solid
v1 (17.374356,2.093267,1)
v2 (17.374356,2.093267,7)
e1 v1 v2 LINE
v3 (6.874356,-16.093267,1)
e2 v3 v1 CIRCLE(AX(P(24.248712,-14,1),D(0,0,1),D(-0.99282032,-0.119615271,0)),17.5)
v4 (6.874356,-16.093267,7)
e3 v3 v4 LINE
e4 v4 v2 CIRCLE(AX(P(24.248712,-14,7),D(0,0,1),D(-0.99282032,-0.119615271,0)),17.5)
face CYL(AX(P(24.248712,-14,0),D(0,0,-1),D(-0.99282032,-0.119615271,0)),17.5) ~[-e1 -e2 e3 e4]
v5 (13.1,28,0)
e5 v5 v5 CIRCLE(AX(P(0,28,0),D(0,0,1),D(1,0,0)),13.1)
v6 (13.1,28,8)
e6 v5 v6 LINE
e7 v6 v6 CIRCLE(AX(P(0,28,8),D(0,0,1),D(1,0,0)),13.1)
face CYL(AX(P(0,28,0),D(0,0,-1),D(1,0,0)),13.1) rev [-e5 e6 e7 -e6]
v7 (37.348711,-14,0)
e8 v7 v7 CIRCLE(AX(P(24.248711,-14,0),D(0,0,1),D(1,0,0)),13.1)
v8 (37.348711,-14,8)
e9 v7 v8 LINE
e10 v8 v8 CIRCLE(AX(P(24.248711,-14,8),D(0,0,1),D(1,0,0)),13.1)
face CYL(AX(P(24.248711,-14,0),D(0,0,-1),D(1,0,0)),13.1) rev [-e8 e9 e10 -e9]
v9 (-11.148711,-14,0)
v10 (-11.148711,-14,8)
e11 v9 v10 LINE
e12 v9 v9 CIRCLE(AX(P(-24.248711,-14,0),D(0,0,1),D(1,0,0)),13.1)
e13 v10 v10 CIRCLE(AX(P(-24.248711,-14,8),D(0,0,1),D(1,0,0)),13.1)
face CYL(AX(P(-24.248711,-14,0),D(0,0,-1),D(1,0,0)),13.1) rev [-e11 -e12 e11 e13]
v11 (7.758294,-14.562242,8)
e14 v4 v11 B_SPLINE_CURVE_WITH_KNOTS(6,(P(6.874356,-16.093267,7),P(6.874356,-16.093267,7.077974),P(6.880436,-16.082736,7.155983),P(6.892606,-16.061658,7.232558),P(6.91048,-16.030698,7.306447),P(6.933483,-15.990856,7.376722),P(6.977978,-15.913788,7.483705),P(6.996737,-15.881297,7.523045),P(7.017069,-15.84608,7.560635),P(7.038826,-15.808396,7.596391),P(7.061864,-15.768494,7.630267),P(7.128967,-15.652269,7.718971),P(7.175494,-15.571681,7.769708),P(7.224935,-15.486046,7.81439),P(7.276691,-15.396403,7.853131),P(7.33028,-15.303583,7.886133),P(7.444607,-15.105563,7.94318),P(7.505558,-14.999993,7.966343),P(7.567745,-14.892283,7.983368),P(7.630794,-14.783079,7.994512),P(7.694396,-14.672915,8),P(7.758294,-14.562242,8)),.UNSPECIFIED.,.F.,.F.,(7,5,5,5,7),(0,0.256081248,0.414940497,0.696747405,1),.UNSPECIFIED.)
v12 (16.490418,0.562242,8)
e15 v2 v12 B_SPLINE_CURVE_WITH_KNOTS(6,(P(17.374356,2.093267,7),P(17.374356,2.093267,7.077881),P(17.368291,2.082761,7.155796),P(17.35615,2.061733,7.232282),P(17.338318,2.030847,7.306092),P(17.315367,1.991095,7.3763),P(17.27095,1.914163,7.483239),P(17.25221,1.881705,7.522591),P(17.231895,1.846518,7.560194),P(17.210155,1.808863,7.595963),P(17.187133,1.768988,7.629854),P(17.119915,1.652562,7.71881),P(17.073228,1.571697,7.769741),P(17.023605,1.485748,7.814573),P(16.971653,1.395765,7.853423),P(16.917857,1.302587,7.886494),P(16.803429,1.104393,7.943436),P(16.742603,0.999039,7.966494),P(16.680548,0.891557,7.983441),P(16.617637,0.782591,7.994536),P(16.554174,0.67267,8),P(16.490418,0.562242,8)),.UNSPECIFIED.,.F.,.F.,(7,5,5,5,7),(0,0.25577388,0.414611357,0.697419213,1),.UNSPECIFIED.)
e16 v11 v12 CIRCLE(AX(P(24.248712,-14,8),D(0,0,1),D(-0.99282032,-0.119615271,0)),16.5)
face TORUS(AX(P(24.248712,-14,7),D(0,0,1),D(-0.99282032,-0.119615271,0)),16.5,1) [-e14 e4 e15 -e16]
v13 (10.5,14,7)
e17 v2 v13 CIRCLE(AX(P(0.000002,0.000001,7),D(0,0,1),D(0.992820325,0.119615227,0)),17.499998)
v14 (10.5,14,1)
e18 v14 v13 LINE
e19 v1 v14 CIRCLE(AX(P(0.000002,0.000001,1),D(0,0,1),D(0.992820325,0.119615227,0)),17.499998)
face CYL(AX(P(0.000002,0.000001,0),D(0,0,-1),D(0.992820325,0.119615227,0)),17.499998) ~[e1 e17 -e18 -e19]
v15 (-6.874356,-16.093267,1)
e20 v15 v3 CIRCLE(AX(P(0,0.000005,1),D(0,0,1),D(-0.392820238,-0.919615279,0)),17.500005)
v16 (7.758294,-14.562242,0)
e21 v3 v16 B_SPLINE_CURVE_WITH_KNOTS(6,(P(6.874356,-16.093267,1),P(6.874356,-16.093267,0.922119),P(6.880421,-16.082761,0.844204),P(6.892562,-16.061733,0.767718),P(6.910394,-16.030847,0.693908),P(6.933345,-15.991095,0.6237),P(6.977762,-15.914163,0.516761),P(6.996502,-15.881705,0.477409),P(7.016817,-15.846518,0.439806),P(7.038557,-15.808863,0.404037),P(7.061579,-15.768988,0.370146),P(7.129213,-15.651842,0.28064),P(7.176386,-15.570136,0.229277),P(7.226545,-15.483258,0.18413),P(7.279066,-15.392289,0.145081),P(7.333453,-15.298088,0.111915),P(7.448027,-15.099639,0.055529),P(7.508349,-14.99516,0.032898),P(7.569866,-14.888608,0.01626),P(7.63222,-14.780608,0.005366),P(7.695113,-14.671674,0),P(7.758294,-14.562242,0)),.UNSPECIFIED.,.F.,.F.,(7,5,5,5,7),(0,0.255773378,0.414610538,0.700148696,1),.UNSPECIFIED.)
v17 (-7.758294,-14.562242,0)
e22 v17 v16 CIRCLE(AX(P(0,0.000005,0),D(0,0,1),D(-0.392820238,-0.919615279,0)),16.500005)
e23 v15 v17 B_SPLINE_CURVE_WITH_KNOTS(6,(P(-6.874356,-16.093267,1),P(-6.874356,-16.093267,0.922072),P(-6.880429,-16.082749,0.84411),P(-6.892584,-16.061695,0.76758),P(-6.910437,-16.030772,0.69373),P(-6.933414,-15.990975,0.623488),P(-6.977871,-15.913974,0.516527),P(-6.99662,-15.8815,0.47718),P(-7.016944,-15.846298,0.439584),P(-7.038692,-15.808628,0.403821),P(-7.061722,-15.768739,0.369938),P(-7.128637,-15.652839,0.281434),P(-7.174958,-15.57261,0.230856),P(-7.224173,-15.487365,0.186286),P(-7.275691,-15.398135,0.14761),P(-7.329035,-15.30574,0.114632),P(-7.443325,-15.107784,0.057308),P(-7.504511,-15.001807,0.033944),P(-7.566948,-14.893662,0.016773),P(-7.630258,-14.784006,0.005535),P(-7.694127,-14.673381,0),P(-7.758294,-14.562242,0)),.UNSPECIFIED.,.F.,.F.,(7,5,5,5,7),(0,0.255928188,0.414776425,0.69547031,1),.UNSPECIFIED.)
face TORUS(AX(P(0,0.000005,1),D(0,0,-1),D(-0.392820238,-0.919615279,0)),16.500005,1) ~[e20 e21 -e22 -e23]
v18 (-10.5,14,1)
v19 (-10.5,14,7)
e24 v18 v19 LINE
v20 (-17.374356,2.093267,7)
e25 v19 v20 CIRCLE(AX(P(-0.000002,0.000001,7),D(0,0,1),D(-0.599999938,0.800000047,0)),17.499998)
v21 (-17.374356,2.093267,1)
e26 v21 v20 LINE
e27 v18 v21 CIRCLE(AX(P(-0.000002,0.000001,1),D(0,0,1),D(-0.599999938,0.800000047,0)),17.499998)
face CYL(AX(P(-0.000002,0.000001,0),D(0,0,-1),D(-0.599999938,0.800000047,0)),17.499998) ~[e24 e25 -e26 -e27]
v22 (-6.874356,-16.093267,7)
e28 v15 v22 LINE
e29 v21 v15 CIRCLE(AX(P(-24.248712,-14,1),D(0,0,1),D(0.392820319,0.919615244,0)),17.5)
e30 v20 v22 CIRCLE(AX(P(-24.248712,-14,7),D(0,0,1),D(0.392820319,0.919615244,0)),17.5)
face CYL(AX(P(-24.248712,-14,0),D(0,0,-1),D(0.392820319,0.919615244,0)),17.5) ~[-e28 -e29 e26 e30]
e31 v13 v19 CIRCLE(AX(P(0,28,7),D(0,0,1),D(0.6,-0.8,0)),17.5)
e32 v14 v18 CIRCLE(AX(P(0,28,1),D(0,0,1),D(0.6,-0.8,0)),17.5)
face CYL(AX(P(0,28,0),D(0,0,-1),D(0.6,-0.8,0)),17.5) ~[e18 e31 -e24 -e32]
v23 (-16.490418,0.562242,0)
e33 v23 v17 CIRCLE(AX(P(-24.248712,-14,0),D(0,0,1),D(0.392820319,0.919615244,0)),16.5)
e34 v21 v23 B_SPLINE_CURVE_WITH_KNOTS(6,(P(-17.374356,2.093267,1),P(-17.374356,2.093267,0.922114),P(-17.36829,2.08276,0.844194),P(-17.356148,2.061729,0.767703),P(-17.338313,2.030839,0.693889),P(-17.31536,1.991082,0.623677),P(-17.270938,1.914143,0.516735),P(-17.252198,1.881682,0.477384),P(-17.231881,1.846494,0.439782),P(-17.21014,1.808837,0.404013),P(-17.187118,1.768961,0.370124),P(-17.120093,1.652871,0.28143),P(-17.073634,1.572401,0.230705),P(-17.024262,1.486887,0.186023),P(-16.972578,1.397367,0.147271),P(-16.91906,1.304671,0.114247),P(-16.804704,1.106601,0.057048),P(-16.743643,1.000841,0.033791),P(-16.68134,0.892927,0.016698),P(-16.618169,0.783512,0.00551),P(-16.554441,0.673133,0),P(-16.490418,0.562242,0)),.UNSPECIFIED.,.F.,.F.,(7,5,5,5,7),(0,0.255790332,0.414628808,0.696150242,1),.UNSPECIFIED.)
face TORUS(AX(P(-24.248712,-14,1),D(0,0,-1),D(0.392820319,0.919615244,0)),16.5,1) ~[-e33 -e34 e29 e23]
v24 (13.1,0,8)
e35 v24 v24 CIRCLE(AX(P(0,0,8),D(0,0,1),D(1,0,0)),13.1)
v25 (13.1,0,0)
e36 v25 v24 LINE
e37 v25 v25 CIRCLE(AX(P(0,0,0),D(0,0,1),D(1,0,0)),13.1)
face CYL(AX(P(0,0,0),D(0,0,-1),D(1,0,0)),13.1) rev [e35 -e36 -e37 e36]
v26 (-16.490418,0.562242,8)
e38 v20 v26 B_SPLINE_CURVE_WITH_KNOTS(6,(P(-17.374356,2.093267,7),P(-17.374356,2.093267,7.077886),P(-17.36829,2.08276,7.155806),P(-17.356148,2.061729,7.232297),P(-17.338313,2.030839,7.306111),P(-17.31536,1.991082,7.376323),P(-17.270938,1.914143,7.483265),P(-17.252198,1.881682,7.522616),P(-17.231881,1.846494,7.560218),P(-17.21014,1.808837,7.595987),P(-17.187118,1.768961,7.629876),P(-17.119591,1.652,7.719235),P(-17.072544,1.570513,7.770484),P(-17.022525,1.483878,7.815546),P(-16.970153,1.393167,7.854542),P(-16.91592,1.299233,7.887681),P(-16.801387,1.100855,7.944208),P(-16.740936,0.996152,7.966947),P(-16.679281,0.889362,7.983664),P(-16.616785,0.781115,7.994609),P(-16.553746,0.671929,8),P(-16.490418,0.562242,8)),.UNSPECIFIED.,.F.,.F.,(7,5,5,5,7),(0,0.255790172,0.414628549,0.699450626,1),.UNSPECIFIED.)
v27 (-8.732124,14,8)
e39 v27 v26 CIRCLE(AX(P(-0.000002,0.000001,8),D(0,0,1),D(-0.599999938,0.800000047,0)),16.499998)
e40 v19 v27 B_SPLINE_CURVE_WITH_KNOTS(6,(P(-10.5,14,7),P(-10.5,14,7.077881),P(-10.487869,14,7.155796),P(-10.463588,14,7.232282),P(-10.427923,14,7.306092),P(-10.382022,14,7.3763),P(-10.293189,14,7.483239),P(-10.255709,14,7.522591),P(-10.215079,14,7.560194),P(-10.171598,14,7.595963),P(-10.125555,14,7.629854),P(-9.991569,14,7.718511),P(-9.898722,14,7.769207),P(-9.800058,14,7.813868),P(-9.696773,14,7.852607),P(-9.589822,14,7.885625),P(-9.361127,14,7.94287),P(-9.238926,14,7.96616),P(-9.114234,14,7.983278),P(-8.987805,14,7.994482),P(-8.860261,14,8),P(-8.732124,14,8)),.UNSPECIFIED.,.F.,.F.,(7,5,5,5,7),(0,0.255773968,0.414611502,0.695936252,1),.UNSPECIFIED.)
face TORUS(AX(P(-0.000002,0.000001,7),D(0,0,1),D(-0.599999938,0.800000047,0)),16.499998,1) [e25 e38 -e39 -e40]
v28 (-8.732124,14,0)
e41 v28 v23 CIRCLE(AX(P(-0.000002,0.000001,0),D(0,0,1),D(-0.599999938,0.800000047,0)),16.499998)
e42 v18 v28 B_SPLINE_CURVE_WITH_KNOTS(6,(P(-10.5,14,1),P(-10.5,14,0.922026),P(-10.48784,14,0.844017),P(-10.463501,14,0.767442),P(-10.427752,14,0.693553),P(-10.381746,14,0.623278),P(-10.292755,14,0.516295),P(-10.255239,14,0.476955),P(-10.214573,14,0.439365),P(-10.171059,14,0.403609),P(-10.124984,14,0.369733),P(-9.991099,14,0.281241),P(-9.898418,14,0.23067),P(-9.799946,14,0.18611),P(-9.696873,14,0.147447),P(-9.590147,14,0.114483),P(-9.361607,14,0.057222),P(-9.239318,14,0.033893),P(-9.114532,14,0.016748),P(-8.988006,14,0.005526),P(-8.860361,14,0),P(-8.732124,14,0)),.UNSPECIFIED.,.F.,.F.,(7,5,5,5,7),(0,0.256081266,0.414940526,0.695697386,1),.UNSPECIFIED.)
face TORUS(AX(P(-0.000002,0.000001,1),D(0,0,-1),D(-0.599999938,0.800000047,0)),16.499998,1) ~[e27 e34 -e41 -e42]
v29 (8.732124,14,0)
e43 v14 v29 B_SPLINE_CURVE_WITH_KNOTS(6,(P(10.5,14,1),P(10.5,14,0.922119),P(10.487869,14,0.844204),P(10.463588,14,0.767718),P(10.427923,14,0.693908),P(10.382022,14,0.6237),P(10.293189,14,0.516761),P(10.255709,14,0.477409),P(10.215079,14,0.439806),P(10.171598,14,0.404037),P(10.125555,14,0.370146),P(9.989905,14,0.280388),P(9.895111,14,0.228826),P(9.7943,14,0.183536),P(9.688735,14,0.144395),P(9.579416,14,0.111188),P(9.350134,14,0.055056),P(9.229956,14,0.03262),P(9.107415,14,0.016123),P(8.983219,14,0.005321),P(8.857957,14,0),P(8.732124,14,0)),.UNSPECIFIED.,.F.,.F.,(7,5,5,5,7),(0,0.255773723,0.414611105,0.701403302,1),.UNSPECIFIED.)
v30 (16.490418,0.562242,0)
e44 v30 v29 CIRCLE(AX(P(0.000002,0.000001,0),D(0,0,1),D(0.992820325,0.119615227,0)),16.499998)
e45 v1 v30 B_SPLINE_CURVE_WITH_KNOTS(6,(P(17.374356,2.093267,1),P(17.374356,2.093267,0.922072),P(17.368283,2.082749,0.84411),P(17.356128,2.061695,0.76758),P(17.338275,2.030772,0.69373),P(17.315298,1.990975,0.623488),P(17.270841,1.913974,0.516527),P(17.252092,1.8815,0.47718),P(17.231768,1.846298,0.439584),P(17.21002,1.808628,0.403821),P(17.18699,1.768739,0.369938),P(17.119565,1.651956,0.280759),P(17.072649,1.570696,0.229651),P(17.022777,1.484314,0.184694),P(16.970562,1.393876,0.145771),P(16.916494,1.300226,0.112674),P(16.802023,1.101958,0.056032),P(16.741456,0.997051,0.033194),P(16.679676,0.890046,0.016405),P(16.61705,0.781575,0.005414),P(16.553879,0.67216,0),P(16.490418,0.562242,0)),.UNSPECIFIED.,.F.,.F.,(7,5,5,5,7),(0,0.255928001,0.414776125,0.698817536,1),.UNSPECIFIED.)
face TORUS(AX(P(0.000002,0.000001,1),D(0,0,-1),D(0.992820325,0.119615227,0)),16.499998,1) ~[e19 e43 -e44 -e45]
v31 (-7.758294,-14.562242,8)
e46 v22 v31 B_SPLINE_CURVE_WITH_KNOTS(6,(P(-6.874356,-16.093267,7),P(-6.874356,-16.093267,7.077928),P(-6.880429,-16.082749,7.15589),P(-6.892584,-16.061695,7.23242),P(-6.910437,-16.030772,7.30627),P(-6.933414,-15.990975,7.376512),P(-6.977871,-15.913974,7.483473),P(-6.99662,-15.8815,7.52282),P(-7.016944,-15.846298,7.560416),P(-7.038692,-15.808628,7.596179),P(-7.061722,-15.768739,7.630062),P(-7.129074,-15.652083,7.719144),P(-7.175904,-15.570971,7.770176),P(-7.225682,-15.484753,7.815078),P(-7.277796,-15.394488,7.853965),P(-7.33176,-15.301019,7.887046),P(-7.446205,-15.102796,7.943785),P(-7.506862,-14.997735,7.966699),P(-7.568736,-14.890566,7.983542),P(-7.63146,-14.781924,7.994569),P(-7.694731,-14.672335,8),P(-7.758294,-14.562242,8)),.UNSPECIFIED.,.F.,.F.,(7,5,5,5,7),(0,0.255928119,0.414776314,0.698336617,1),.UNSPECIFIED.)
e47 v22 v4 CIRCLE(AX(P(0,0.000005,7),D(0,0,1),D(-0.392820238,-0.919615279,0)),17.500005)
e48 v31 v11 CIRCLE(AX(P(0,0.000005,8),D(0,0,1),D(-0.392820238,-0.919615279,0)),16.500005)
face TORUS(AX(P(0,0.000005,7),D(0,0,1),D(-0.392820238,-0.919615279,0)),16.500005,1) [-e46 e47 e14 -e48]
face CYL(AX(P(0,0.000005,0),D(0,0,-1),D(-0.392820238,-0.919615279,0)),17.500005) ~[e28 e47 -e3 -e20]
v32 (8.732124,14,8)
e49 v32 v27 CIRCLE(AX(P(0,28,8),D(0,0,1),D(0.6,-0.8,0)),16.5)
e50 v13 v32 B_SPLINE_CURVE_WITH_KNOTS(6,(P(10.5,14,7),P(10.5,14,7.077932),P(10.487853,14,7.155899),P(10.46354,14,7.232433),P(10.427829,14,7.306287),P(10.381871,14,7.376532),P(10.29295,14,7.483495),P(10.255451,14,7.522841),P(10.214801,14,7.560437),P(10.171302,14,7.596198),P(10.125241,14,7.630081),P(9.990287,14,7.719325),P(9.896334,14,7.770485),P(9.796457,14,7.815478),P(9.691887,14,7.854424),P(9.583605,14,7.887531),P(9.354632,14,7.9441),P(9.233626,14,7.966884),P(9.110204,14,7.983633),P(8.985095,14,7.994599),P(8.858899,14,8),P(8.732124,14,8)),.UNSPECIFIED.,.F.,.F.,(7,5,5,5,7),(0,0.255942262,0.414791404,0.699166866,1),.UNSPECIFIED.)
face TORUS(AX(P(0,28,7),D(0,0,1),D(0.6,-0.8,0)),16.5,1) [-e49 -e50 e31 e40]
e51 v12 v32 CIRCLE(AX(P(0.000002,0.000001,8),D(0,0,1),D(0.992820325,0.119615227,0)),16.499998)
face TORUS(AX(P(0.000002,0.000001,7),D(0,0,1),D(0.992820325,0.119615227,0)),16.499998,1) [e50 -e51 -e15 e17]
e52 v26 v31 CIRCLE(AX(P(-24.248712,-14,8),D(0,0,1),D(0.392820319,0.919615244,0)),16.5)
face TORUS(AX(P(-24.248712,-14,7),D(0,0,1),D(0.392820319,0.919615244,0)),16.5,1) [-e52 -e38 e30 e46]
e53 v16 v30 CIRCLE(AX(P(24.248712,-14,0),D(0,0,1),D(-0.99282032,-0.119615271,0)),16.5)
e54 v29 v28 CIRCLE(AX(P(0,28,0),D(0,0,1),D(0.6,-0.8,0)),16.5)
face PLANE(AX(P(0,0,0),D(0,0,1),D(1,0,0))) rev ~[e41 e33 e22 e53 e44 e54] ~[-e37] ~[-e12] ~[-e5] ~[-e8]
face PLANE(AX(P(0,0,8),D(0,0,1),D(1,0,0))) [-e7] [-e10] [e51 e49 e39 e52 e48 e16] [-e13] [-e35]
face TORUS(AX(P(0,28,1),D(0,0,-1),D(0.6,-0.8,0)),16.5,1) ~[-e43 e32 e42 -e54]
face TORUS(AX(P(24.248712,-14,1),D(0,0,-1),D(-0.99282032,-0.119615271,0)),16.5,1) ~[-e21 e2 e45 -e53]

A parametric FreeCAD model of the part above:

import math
import FreeCAD as App
import Part
import Sketcher
from FreeCAD import Vector


def edges_at(feature, points):
    """Names of the edges that pass closest to the given points."""
    edges = feature.Shape.Edges
    near = lambda p: min(range(len(edges)), key=lambda i: edges[i].distToShape(Part.Vertex(*p))[0])
    return sorted({f"Edge{near(p) + 1}" for p in points})

doc = App.newDocument("Part")
params = doc.addObject("Spreadsheet::Sheet", "Params")
for row, (alias, value) in enumerate([
    ("sketch1_diameter", "26.2 mm"),
    ("sketch1_radius", "17.5 mm"),
    ("pad1_length", "8 mm"),
    ("fillet_radius", "1 mm"),
], start=1):
    params.set(f"A{row}", alias)
    params.set(f"B{row}", "=" + value)
    params.setAlias(f"B{row}", alias)

body = doc.addObject("PartDesign::Body", "Body")

# Sketch on XY plane
sketch1 = doc.addObject("Sketcher::SketchObject", "Sketch")
body.addObject(sketch1)
sketch1.AttachmentSupport = (doc.XY_Plane, [""])
sketch1.MapMode = "FlatFace"
sketch1.addGeometry(Part.ArcOfCircle(Part.Circle(Vector(-24.248712, -14, 0), Vector(0, 0, 1), 17.5), math.radians(66.869898), math.radians(353.130101)), False)
sketch1.addGeometry(Part.ArcOfCircle(Part.Circle(Vector(0, 0.000005, 0), Vector(0, 0, 1), 17.500005), math.radians(-113.130097), math.radians(-66.869903)), False)
sketch1.addGeometry(Part.ArcOfCircle(Part.Circle(Vector(24.248712, -14, 0), Vector(0, 0, 1), 17.5), math.radians(-173.130101), math.radians(113.130102)), False)
sketch1.addGeometry(Part.ArcOfCircle(Part.Circle(Vector(0.000002, 0.000001, 0), Vector(0, 0, 1), 17.499998), math.radians(6.869897), math.radians(53.130107)), False)
sketch1.addGeometry(Part.ArcOfCircle(Part.Circle(Vector(0, 28, 0), Vector(0, 0, 1), 17.5), math.radians(-53.130102), math.radians(233.130102)), False)
sketch1.addGeometry(Part.ArcOfCircle(Part.Circle(Vector(-0.000002, 0.000001, 0), Vector(0, 0, 1), 17.499998), math.radians(126.869893), math.radians(173.130103)), False)
sketch1.addGeometry(Part.Circle(Vector(-24.248711, -14, 0), Vector(0, 0, 1), 13.1), False)
sketch1.addGeometry(Part.Circle(Vector(0, 0, 0), Vector(0, 0, 1), 13.1), False)
sketch1.addGeometry(Part.Circle(Vector(24.248711, -14, 0), Vector(0, 0, 1), 13.1), False)
sketch1.addGeometry(Part.Circle(Vector(0, 28, 0), Vector(0, 0, 1), 13.1), False)
sketch1.addConstraint(Sketcher.Constraint("Coincident", 0, 2, 1, 1))
sketch1.addConstraint(Sketcher.Constraint("Coincident", 1, 2, 2, 1))
sketch1.addConstraint(Sketcher.Constraint("Coincident", 2, 2, 3, 1))
sketch1.addConstraint(Sketcher.Constraint("Coincident", 3, 2, 4, 1))
sketch1.addConstraint(Sketcher.Constraint("Coincident", 4, 2, 5, 1))
sketch1.addConstraint(Sketcher.Constraint("Coincident", 5, 2, 0, 1))
sketch1.addConstraint(Sketcher.Constraint("Coincident", 1, 3, -1, 1))
sketch1.addConstraint(Sketcher.Constraint("Coincident", 3, 3, -1, 1))
sketch1.addConstraint(Sketcher.Constraint("Coincident", 5, 3, -1, 1))
sketch1.addConstraint(Sketcher.Constraint("Coincident", 7, 3, -1, 1))
sketch1.addConstraint(Sketcher.Constraint("Coincident", 6, 3, 0, 3))
sketch1.addConstraint(Sketcher.Constraint("Coincident", 8, 3, 2, 3))
sketch1.addConstraint(Sketcher.Constraint("Coincident", 9, 3, 4, 3))
sketch1.addConstraint(Sketcher.Constraint("Equal", 0, 2))
sketch1.addConstraint(Sketcher.Constraint("Equal", 2, 3))
sketch1.addConstraint(Sketcher.Constraint("Equal", 3, 4))
sketch1.addConstraint(Sketcher.Constraint("Equal", 4, 5))
sketch1.addConstraint(Sketcher.Constraint("Equal", 6, 7))
sketch1.addConstraint(Sketcher.Constraint("Equal", 7, 8))
sketch1.addConstraint(Sketcher.Constraint("Equal", 8, 9))
sketch1.addConstraint(Sketcher.Constraint("Symmetric", 0, 3, 2, 3, -2))
sketch1.addConstraint(Sketcher.Constraint("PointOnObject", 4, 3, -2))
sketch1.addConstraint(Sketcher.Constraint("Diameter", 6, 26.2))
sketch1.addConstraint(Sketcher.Constraint("Radius", 0, 17.5))
sketch1.addConstraint(Sketcher.Constraint("DistanceY", 0, 3, -1, 1, 14.0))
sketch1.addConstraint(Sketcher.Constraint("DistanceY", -1, 1, 4, 3, 28.0))
sketch1.addConstraint(Sketcher.Constraint("Radius", 1, 17.500005))
sketch1.addConstraint(Sketcher.Constraint("DistanceX", 0, 3, -1, 1, 24.248712))
sketch1.setExpression("Constraints[22]", "Params.sketch1_diameter")
sketch1.setExpression("Constraints[23]", "Params.sketch1_radius")
pad1 = doc.addObject("PartDesign::Pad", "Pad")
body.addObject(pad1)
pad1.Profile = sketch1
pad1.setExpression("Length", "Params.pad1_length")
doc.recompute()

fillet = doc.addObject("PartDesign::Fillet", "Fillet")
body.addObject(fillet)
fillet.Base = (pad1, edges_at(pad1, [
    (-39.404, -22.75, 8),
    (-15.155, 8.75, 8),
    (0, 45.5, 8),
    (15.155, 8.75, 8),
    (39.404, -22.75, 8),
    (0, -17.5, 8),
    (-39.404, -22.75, 0),
    (0, -17.5, 0),
    (39.404, -22.75, 0),
    (15.155, 8.75, 0),
    (0, 45.5, 0),
    (-15.155, 8.75, 0),
]))
fillet.setExpression("Radius", "Params.fillet_radius")

doc.recompute()
